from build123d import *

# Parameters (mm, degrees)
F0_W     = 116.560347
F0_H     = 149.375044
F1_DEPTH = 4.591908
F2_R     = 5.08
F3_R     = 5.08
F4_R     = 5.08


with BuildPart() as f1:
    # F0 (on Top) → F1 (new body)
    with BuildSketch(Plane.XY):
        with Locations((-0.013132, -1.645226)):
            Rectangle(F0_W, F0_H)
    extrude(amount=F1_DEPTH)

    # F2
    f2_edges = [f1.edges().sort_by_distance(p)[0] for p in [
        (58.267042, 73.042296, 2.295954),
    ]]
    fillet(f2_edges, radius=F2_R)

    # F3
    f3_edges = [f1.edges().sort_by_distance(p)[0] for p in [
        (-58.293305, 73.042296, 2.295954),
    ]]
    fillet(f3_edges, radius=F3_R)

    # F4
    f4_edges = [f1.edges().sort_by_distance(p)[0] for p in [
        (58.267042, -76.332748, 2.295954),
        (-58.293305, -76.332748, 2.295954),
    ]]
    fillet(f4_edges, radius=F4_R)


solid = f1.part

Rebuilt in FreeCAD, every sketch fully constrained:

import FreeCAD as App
import Part
import Sketcher
Q = App.Units.Quantity


def edges_at(feature, points):
    """Names of the edges that pass closest to the given points."""
    edges = feature.Shape.Edges
    near = lambda p: min(range(len(edges)), key=lambda i: edges[i].distToShape(Part.Vertex(*p))[0])
    return sorted({f"Edge{near(p) + 1}" for p in points})


def add_polygon(sketch, points):
    """Adds a closed chain of lines whose ends are joined by coincident constraints."""
    first, n = sketch.GeometryCount, len(points)
    for a, b in zip(points, points[1:] + points[:1]):
        sketch.addGeometry(Part.LineSegment(App.Vector(*a, 0), App.Vector(*b, 0)), False)
    for i in range(n):
        sketch.addConstraint(Sketcher.Constraint("Coincident", first + i, 2, first + (i + 1) % n, 1))

doc = App.newDocument("Part")
body = doc.addObject("PartDesign::Body", "Body")

sketch1 = doc.addObject("Sketcher::SketchObject", "Sketch")
body.addObject(sketch1)
sketch1.AttachmentSupport = (doc.XY_Plane, [""])
sketch1.MapMode = "FlatFace"
add_polygon(sketch1, [(-58, 73), (-58, -76), (58, -76), (58, 73)])
sketch1.addConstraint(Sketcher.Constraint("Vertical", 0))
sketch1.addConstraint(Sketcher.Constraint("Horizontal", 1))
sketch1.addConstraint(Sketcher.Constraint("Vertical", 2))
sketch1.addConstraint(Sketcher.Constraint("Horizontal", 3))
sketch1.addConstraint(Sketcher.Constraint("DistanceX", 1, 1, 1, 2, 116.560347))
sketch1.addConstraint(Sketcher.Constraint("DistanceY", 0, 2, 0, 1, 149.375044))
sketch1.addConstraint(Sketcher.Constraint("DistanceX", -1, 1, 1, 2, 58.267041))
sketch1.addConstraint(Sketcher.Constraint("DistanceY", 0, 2, -1, 1, 76.332748))
pad1 = doc.addObject("PartDesign::Pad", "Pad")
body.addObject(pad1)
pad1.Profile = sketch1
pad1.Length = 4.591908
doc.recompute()

fillet = doc.addObject("PartDesign::Fillet", "Fillet")
body.addObject(fillet)
fillet.Base = (pad1, edges_at(pad1, [(58.267, 73.042, 2.296)]))
fillet.Radius = Q("0.2 in")
doc.recompute()

fillet2 = doc.addObject("PartDesign::Fillet", "Fillet001")
body.addObject(fillet2)
fillet2.Base = (fillet, edges_at(fillet, [(-58.293, 73.042, 2.296)]))
fillet2.Radius = Q("0.2 in")
doc.recompute()

fillet3 = doc.addObject("PartDesign::Fillet", "Fillet002")
body.addObject(fillet3)
fillet3.Base = (fillet2, edges_at(fillet2, [(58.267, -76.333, 2.296), (-58.293, -76.333, 2.296)]))
fillet3.Radius = Q("0.2 in")

doc.recompute()
